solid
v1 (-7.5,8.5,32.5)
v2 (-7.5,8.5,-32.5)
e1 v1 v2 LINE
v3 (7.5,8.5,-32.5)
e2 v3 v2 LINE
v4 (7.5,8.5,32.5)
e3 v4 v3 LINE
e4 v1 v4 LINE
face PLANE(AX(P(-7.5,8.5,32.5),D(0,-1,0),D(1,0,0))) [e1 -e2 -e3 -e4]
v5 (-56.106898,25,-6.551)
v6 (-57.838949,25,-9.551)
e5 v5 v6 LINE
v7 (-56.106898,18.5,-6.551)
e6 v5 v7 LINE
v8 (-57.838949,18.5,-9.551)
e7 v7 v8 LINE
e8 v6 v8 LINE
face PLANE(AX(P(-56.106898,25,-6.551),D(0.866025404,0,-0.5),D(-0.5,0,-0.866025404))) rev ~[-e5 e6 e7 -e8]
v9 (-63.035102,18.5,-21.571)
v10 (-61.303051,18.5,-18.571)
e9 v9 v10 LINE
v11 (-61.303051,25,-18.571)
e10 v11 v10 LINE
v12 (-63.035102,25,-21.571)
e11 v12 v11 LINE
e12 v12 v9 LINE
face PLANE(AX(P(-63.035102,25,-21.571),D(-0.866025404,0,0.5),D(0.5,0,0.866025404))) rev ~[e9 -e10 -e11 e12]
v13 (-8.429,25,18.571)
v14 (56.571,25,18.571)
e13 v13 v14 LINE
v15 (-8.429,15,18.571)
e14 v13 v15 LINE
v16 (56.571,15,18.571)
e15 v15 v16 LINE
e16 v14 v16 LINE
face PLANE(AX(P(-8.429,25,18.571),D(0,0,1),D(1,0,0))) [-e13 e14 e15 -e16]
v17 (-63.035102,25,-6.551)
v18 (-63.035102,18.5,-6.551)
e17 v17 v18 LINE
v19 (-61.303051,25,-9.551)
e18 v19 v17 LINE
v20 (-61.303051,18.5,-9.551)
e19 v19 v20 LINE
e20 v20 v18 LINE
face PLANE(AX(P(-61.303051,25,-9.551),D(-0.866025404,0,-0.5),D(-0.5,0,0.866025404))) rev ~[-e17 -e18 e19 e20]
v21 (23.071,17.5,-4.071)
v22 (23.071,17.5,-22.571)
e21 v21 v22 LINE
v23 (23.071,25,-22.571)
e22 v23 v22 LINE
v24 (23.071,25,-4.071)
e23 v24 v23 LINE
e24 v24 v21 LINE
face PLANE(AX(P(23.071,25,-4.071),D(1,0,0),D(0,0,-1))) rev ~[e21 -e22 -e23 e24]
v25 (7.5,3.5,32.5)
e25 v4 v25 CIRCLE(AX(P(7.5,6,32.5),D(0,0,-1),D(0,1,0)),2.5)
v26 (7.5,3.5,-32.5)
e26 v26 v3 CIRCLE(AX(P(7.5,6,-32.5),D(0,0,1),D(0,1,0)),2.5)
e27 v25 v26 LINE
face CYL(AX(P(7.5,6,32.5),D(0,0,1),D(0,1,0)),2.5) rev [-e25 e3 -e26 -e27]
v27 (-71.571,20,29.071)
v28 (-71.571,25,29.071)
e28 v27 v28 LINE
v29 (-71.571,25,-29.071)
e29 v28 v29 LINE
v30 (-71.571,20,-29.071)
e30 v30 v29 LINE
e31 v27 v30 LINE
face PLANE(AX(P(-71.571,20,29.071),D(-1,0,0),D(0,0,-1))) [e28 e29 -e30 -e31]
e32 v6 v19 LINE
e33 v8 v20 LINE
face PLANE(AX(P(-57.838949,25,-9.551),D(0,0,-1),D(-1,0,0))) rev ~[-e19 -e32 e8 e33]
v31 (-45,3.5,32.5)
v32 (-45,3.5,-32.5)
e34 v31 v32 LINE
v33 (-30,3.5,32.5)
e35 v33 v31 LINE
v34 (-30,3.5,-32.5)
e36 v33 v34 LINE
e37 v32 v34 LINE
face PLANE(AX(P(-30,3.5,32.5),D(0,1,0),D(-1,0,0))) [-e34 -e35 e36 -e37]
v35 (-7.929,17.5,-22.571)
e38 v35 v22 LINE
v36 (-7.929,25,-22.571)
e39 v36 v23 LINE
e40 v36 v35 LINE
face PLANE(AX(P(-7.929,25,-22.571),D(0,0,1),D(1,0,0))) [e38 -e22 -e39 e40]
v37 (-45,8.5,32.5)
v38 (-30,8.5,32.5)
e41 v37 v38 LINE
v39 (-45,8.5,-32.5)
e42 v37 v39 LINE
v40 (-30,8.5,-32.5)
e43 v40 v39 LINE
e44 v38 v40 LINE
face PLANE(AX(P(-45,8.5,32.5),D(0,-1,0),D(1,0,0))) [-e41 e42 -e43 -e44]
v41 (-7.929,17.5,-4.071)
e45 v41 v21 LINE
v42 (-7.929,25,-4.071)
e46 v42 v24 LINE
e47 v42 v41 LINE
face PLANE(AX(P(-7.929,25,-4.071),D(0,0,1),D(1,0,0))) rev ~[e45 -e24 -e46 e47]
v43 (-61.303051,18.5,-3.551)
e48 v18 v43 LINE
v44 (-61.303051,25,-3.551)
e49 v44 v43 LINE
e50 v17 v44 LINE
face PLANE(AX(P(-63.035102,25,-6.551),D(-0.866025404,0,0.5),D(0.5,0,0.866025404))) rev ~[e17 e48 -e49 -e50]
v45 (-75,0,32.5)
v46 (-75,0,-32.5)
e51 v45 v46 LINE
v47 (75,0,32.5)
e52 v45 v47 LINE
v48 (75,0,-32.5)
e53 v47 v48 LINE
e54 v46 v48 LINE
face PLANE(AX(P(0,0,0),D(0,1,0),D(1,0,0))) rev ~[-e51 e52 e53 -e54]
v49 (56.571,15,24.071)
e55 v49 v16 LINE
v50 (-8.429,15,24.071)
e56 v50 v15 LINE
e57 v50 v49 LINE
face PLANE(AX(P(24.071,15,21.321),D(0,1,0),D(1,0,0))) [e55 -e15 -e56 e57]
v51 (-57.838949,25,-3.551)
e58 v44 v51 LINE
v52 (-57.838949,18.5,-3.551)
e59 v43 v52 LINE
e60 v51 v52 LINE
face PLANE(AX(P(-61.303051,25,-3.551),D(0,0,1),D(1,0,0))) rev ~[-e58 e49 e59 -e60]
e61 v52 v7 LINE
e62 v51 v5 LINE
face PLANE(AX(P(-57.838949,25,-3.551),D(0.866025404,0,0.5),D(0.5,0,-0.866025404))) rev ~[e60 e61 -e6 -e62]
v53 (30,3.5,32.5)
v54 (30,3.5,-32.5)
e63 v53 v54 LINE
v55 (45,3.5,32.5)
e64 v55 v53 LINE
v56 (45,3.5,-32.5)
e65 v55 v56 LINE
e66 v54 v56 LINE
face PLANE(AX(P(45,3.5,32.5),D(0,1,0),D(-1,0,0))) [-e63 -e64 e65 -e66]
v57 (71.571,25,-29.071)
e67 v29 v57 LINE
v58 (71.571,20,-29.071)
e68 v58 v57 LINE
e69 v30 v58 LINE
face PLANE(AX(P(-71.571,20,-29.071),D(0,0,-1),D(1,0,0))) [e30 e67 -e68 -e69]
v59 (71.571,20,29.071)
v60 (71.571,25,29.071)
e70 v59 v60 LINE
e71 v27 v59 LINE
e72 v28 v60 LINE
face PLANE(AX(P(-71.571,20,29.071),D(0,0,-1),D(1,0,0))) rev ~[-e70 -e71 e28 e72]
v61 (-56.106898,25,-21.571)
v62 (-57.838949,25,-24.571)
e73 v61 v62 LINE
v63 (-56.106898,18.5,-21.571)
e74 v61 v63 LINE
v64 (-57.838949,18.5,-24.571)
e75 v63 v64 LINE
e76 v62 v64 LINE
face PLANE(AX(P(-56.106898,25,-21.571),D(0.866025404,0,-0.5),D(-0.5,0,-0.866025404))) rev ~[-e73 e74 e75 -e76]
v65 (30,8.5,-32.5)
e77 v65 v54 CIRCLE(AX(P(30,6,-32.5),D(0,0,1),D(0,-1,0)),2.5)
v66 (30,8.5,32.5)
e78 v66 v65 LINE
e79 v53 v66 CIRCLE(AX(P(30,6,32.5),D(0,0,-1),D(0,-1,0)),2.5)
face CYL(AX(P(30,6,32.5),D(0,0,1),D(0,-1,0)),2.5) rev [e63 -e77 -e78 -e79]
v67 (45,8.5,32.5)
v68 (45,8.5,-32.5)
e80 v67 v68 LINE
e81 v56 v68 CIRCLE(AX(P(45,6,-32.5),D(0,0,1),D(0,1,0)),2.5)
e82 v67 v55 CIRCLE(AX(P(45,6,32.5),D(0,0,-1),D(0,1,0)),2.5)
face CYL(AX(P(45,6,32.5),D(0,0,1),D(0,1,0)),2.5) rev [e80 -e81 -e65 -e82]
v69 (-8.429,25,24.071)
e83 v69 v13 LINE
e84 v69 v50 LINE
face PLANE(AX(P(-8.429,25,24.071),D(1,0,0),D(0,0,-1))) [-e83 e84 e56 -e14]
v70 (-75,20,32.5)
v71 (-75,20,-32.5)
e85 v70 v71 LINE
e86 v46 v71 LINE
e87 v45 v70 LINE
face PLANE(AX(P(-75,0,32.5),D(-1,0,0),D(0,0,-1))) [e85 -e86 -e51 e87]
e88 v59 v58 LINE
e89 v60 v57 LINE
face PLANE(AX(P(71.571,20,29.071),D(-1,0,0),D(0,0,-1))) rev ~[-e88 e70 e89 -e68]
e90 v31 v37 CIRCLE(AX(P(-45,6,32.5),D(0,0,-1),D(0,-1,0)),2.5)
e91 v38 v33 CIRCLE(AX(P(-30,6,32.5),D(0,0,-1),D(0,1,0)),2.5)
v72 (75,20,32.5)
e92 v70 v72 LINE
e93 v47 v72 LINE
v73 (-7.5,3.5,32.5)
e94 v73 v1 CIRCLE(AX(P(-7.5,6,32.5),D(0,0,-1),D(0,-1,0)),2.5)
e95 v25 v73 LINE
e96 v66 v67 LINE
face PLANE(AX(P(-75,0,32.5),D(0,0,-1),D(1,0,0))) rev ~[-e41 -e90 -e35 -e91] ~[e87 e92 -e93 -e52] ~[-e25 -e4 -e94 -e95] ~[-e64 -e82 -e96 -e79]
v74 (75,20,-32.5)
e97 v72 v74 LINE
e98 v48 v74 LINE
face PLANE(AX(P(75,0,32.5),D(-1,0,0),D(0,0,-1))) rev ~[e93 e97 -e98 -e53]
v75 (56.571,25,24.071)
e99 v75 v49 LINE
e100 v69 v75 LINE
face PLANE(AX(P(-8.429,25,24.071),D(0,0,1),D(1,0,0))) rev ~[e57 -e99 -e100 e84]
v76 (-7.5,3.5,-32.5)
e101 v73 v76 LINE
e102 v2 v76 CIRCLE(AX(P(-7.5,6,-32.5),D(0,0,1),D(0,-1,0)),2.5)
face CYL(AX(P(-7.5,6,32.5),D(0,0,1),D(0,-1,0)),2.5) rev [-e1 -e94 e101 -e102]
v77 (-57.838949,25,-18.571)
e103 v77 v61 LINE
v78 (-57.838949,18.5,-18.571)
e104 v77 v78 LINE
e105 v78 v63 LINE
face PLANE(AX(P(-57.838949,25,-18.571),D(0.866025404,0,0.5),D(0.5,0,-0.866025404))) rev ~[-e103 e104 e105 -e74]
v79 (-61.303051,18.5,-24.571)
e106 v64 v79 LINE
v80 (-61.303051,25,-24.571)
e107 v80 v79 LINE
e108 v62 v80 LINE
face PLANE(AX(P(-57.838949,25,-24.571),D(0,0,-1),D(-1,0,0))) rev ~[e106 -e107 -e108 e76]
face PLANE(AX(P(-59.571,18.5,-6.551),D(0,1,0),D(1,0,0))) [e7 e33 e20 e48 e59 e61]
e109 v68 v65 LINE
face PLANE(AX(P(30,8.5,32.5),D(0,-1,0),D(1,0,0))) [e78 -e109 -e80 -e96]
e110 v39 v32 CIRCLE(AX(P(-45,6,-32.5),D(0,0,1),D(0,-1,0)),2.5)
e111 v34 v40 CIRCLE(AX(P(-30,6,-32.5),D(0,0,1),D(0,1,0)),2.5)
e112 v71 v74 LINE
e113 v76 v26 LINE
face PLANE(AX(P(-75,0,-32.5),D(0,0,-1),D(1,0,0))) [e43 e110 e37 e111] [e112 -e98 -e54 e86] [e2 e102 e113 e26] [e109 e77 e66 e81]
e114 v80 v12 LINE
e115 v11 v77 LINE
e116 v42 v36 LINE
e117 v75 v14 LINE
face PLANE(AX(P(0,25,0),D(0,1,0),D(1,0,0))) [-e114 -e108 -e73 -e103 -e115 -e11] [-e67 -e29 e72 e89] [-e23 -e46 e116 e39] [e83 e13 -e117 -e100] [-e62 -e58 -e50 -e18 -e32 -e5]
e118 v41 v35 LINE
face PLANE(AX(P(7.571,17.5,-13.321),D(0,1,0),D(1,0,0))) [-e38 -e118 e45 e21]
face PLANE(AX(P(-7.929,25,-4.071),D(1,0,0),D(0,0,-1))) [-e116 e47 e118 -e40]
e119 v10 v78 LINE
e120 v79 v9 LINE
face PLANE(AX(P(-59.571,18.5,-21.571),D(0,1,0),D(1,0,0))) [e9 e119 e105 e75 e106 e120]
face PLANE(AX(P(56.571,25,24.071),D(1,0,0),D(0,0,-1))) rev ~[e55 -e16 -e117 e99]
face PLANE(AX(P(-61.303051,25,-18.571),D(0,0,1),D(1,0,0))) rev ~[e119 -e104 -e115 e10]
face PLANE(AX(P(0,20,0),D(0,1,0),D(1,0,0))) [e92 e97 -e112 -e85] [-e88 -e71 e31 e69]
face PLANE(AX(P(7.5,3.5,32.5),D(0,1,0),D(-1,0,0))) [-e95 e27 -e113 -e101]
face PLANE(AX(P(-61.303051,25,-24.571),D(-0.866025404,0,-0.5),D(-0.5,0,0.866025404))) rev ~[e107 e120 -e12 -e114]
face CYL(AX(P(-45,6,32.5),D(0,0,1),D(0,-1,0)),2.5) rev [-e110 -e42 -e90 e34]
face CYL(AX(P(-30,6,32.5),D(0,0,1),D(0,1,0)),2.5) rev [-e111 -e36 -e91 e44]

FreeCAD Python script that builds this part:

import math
import FreeCAD as App
import Part
import Sketcher
Q = App.Units.Quantity

doc = App.newDocument("Part")
params = doc.addObject("Spreadsheet::Sheet", "Params")
for row, (alias, value) in enumerate([
    ("sketch1_width", "150 mm"),
    ("sketch1_height", "65 mm"),
    ("pad1_length", "20 mm"),
    ("sketch2_radius", "2.5 mm"),
    ("sketch2_width", "15 mm"),
    ("pad2_length", "5 mm"),
    ("pocket2_length", "6.5 mm"),
    ("sketch5_width", "65 mm"),
    ("sketch5_height", "5.5 mm"),
    ("pocket3_length", "10 mm"),
    ("sketch6_width", "31 mm"),
    ("sketch6_height", "18.5 mm"),
    ("pocket4_length", "7.5 mm"),
], start=1):
    params.set(f"A{row}", alias)
    params.set(f"B{row}", "=" + value)
    params.setAlias(f"B{row}", alias)

body = doc.addObject("PartDesign::Body", "Body")

# Sketch on XZ plane
sketch1 = body.newObject("Sketcher::SketchObject", "Sketch")
sketch1.AttachmentSupport = (doc.getObject("XZ_Plane"), [""])
sketch1.MapMode = "FlatFace"
sketch1.addGeometry([
    Part.LineSegment(App.Vector(-75, -32, 0), App.Vector(-75, 32, 0)),
    Part.LineSegment(App.Vector(-75, 32, 0), App.Vector(75, 32, 0)),
    Part.LineSegment(App.Vector(75, 32, 0), App.Vector(75, -32, 0)),
    Part.LineSegment(App.Vector(75, -32, 0), App.Vector(-75, -32, 0)),
], False)
sketch1.addConstraint([
    Sketcher.Constraint("Coincident", 0, 2, 1, 1),
    Sketcher.Constraint("Coincident", 1, 2, 2, 1),
    Sketcher.Constraint("Coincident", 2, 2, 3, 1),
    Sketcher.Constraint("Coincident", 3, 2, 0, 1),
    Sketcher.Constraint("Vertical", 0),
    Sketcher.Constraint("Horizontal", 1),
    Sketcher.Constraint("Vertical", 2),
    Sketcher.Constraint("Horizontal", 3),
    Sketcher.Constraint("Symmetric", 0, 2, 2, 2, -1, 1),
    Sketcher.Constraint("DistanceX", 1, 1, 1, 2, 150.0),
    Sketcher.Constraint("DistanceY", 0, 1, 0, 2, 65.0),
])
sketch1.setExpression("Constraints[9]", "Params.sketch1_width")
sketch1.setExpression("Constraints[10]", "Params.sketch1_height")
pad1 = body.newObject("PartDesign::Pad", "Pad")
pad1.Profile = sketch1
pad1.setExpression("Length", "Params.pad1_length")
pad1.Reversed = True

# Sketch on XY plane
sketch2 = body.newObject("Sketcher::SketchObject", "Sketch001")
sketch2.AttachmentSupport = (doc.getObject("XY_Plane"), [""])
sketch2.MapMode = "FlatFace"
sketch2.AttachmentOffset = App.Placement(App.Vector(0, 0, 32.5), App.Rotation())
sketch2.addGeometry([
    Part.LineSegment(App.Vector(7.5, 8.5, 0), App.Vector(-7.5, 8.5, 0)),  # 0
    Part.ArcOfCircle(Part.Circle(App.Vector(-7.5, 6, 0), App.Vector(0, 0, 1), 2.5), math.radians(90), math.radians(270)),  # 1
    Part.LineSegment(App.Vector(-7.5, 3.5, 0), App.Vector(7.5, 3.5, 0)),  # 2
    Part.ArcOfCircle(Part.Circle(App.Vector(7.5, 6, 0), App.Vector(0, 0, 1), 2.5), math.radians(-90), math.radians(90)),  # 3
    Part.LineSegment(App.Vector(-30, 8.5, 0), App.Vector(-45, 8.5, 0)),  # 4
    Part.ArcOfCircle(Part.Circle(App.Vector(-45, 6, 0), App.Vector(0, 0, 1), 2.5), math.radians(90), math.radians(270)),  # 5
    Part.LineSegment(App.Vector(-45, 3.5, 0), App.Vector(-30, 3.5, 0)),  # 6
    Part.ArcOfCircle(Part.Circle(App.Vector(-30, 6, 0), App.Vector(0, 0, 1), 2.5), math.radians(-90), math.radians(90)),  # 7
    Part.LineSegment(App.Vector(45, 8.5, 0), App.Vector(30, 8.5, 0)),  # 8
    Part.ArcOfCircle(Part.Circle(App.Vector(30, 6, 0), App.Vector(0, 0, 1), 2.5), math.radians(90), math.radians(270)),  # 9
    Part.LineSegment(App.Vector(30, 3.5, 0), App.Vector(45, 3.5, 0)),  # 10
    Part.ArcOfCircle(Part.Circle(App.Vector(45, 6, 0), App.Vector(0, 0, 1), 2.5), math.radians(-90), math.radians(90)),  # 11
], False)
sketch2.addConstraint([
    Sketcher.Constraint("Tangent", 0, 2, 1, 1),
    Sketcher.Constraint("Tangent", 1, 2, 2, 1),
    Sketcher.Constraint("Tangent", 2, 2, 3, 1),
    Sketcher.Constraint("Tangent", 3, 2, 0, 1),
    Sketcher.Constraint("Tangent", 4, 2, 5, 1),
    Sketcher.Constraint("Tangent", 5, 2, 6, 1),
    Sketcher.Constraint("Tangent", 6, 2, 7, 1),
    Sketcher.Constraint("Tangent", 7, 2, 4, 1),
    Sketcher.Constraint("Tangent", 8, 2, 9, 1),
    Sketcher.Constraint("Tangent", 9, 2, 10, 1),
    Sketcher.Constraint("Tangent", 10, 2, 11, 1),
    Sketcher.Constraint("Tangent", 11, 2, 8, 1),
    Sketcher.Constraint("Horizontal", 0),
    Sketcher.Constraint("Horizontal", 2),
    Sketcher.Constraint("Horizontal", 4),
    Sketcher.Constraint("Horizontal", 6),
    Sketcher.Constraint("Horizontal", 8),
    Sketcher.Constraint("Horizontal", 10),
    Sketcher.Constraint("Equal", 3, 5),
    Sketcher.Constraint("Equal", 7, 9),
    Sketcher.Constraint("Symmetric", 7, 3, 9, 3, -2),
    Sketcher.Constraint("Horizontal", 3, 3, 5, 3),
    Sketcher.Constraint("Equal", 2, 4),
    Sketcher.Constraint("Equal", 6, 8),
    Sketcher.Constraint("Radius", 1, 2.5),
    Sketcher.Constraint("DistanceX", 0, 2, 0, 1, 15.0),
    Sketcher.Constraint("DistanceY", -1, 1, 1, 3, 6.0),
    Sketcher.Constraint("DistanceX", 5, 3, -1, 1, 45.0),
    Sketcher.Constraint("DistanceX", 1, 3, -1, 1, 7.5),
])
sketch2.setExpression("Constraints[24]", "Params.sketch2_radius")
sketch2.setExpression("Constraints[25]", "Params.sketch2_width")
pocket1 = body.newObject("PartDesign::Pocket", "Pocket")
pocket1.Profile = sketch2
pocket1.Type = "ThroughAll"

# Sketch on XZ plane
sketch3 = body.newObject("Sketcher::SketchObject", "Sketch002")
sketch3.AttachmentSupport = (doc.getObject("XZ_Plane"), [""])
sketch3.MapMode = "FlatFace"
sketch3.AttachmentOffset = App.Placement(App.Vector(0, 0, -20), App.Rotation())
sketch3.addGeometry([
    Part.LineSegment(App.Vector(-72, -29, 0), App.Vector(-72, 29, 0)),
    Part.LineSegment(App.Vector(-72, 29, 0), App.Vector(72, 29, 0)),
    Part.LineSegment(App.Vector(72, 29, 0), App.Vector(72, -29, 0)),
    Part.LineSegment(App.Vector(72, -29, 0), App.Vector(-72, -29, 0)),
], False)
sketch3.addConstraint([
    Sketcher.Constraint("Coincident", 0, 2, 1, 1),
    Sketcher.Constraint("Coincident", 1, 2, 2, 1),
    Sketcher.Constraint("Coincident", 2, 2, 3, 1),
    Sketcher.Constraint("Coincident", 3, 2, 0, 1),
    Sketcher.Constraint("Vertical", 0),
    Sketcher.Constraint("Horizontal", 1),
    Sketcher.Constraint("Vertical", 2),
    Sketcher.Constraint("Horizontal", 3),
    Sketcher.Constraint("Symmetric", 0, 2, 2, 2, -1, 1),
    Sketcher.Constraint("DistanceX", 1, 1, 1, 2, 143.142),
    Sketcher.Constraint("DistanceY", 0, 1, 0, 2, 58.142),
])
pad2 = body.newObject("PartDesign::Pad", "Pad001")
pad2.Profile = sketch3
pad2.setExpression("Length", "Params.pad2_length")
pad2.Reversed = True

# Sketch on XZ plane
sketch4 = body.newObject("Sketcher::SketchObject", "Sketch003")
sketch4.AttachmentSupport = (doc.getObject("XZ_Plane"), [""])
sketch4.MapMode = "FlatFace"
sketch4.AttachmentOffset = App.Placement(App.Vector(0, 0, -25), App.Rotation())
sketch4.addGeometry([
    Part.LineSegment(App.Vector(-61.3, -24.6, 0), App.Vector(-63, -21.6, 0)),  # 0
    Part.LineSegment(App.Vector(-63, -21.6, 0), App.Vector(-61.3, -18.6, 0)),  # 1
    Part.LineSegment(App.Vector(-61.3, -18.6, 0), App.Vector(-57.8, -18.6, 0)),  # 2
    Part.LineSegment(App.Vector(-57.8, -18.6, 0), App.Vector(-56.1, -21.6, 0)),  # 3
    Part.LineSegment(App.Vector(-56.1, -21.6, 0), App.Vector(-57.8, -24.6, 0)),  # 4
    Part.LineSegment(App.Vector(-57.8, -24.6, 0), App.Vector(-61.3, -24.6, 0)),  # 5
    Part.LineSegment(App.Vector(-61.3, -9.6, 0), App.Vector(-63, -6.6, 0)),  # 6
    Part.LineSegment(App.Vector(-63, -6.6, 0), App.Vector(-61.3, -3.6, 0)),  # 7
    Part.LineSegment(App.Vector(-61.3, -3.6, 0), App.Vector(-57.8, -3.6, 0)),  # 8
    Part.LineSegment(App.Vector(-57.8, -3.6, 0), App.Vector(-56.1, -6.6, 0)),  # 9
    Part.LineSegment(App.Vector(-56.1, -6.6, 0), App.Vector(-57.8, -9.6, 0)),  # 10
    Part.LineSegment(App.Vector(-57.8, -9.6, 0), App.Vector(-61.3, -9.6, 0)),  # 11
], False)
sketch4.addConstraint([
    Sketcher.Constraint("Coincident", 0, 2, 1, 1),
    Sketcher.Constraint("Coincident", 1, 2, 2, 1),
    Sketcher.Constraint("Coincident", 2, 2, 3, 1),
    Sketcher.Constraint("Coincident", 3, 2, 4, 1),
    Sketcher.Constraint("Coincident", 4, 2, 5, 1),
    Sketcher.Constraint("Coincident", 5, 2, 0, 1),
    Sketcher.Constraint("Coincident", 6, 2, 7, 1),
    Sketcher.Constraint("Coincident", 7, 2, 8, 1),
    Sketcher.Constraint("Coincident", 8, 2, 9, 1),
    Sketcher.Constraint("Coincident", 9, 2, 10, 1),
    Sketcher.Constraint("Coincident", 10, 2, 11, 1),
    Sketcher.Constraint("Coincident", 11, 2, 6, 1),
    Sketcher.Constraint("Horizontal", 2),
    Sketcher.Constraint("Horizontal", 5),
    Sketcher.Constraint("Horizontal", 8),
    Sketcher.Constraint("Horizontal", 11),
    Sketcher.Constraint("Parallel", 0, 3),
    Sketcher.Constraint("Parallel", 1, 4),
    Sketcher.Constraint("Parallel", 3, 6),
    Sketcher.Constraint("Parallel", 4, 7),
    Sketcher.Constraint("Parallel", 6, 9),
    Sketcher.Constraint("Parallel", 7, 10),
    Sketcher.Constraint("Horizontal", 0, 2, 3, 2),
    Sketcher.Constraint("Horizontal", 6, 2, 9, 2),
    Sketcher.Constraint("Vertical", 2, 2, 4, 2),
    Sketcher.Constraint("Vertical", 1, 2, 5, 2),
    Sketcher.Constraint("Vertical", 0, 2, 6, 2),
    Sketcher.Constraint("Vertical", 5, 2, 7, 2),
    Sketcher.Constraint("Vertical", 4, 2, 8, 2),
    Sketcher.Constraint("Vertical", 8, 2, 10, 2),
    Sketcher.Constraint("Angle", 0, Q("120 deg")),
    Sketcher.Constraint("DistanceY", 0, 2, 1, 2, 3.0),
    Sketcher.Constraint("DistanceY", 1, 2, 6, 2, 12.02),
    Sketcher.Constraint("DistanceX", 2, 1, 2, 2, 3.464102),
    Sketcher.Constraint("DistanceY", 0, 2, -1, 1, 21.571),
    Sketcher.Constraint("DistanceX", 0, 2, -1, 1, 63.035102),
])
pocket2 = body.newObject("PartDesign::Pocket", "Pocket001")
pocket2.Profile = sketch4
pocket2.setExpression("Length", "Params.pocket2_length")
pocket2.Reversed = True

# Sketch on XZ plane
sketch5 = body.newObject("Sketcher::SketchObject", "Sketch004")
sketch5.AttachmentSupport = (doc.getObject("XZ_Plane"), [""])
sketch5.MapMode = "FlatFace"
sketch5.AttachmentOffset = App.Placement(App.Vector(0, 0, -25), App.Rotation())
sketch5.addGeometry([
    Part.LineSegment(App.Vector(-8, 19, 0), App.Vector(-8, 24, 0)),
    Part.LineSegment(App.Vector(-8, 24, 0), App.Vector(57, 24, 0)),
    Part.LineSegment(App.Vector(57, 24, 0), App.Vector(57, 19, 0)),
    Part.LineSegment(App.Vector(57, 19, 0), App.Vector(-8, 19, 0)),
], False)
sketch5.addConstraint([
    Sketcher.Constraint("Coincident", 0, 2, 1, 1),
    Sketcher.Constraint("Coincident", 1, 2, 2, 1),
    Sketcher.Constraint("Coincident", 2, 2, 3, 1),
    Sketcher.Constraint("Coincident", 3, 2, 0, 1),
    Sketcher.Constraint("Vertical", 0),
    Sketcher.Constraint("Horizontal", 1),
    Sketcher.Constraint("Vertical", 2),
    Sketcher.Constraint("Horizontal", 3),
    Sketcher.Constraint("DistanceX", 1, 1, 1, 2, 65.0),
    Sketcher.Constraint("DistanceY", 0, 1, 0, 2, 5.5),
    Sketcher.Constraint("DistanceX", 0, 2, -1, 1, 8.429),
    Sketcher.Constraint("DistanceY", -1, 1, 0, 2, 24.071),
])
sketch5.setExpression("Constraints[8]", "Params.sketch5_width")
sketch5.setExpression("Constraints[9]", "Params.sketch5_height")
pocket3 = body.newObject("PartDesign::Pocket", "Pocket002")
pocket3.Profile = sketch5
pocket3.setExpression("Length", "Params.pocket3_length")
pocket3.Reversed = True

# Sketch on XZ plane
sketch6 = body.newObject("Sketcher::SketchObject", "Sketch005")
sketch6.AttachmentSupport = (doc.getObject("XZ_Plane"), [""])
sketch6.MapMode = "FlatFace"
sketch6.AttachmentOffset = App.Placement(App.Vector(0, 0, -25), App.Rotation())
sketch6.addGeometry([
    Part.LineSegment(App.Vector(-8, -23, 0), App.Vector(-8, -4, 0)),
    Part.LineSegment(App.Vector(-8, -4, 0), App.Vector(23, -4, 0)),
    Part.LineSegment(App.Vector(23, -4, 0), App.Vector(23, -23, 0)),
    Part.LineSegment(App.Vector(23, -23, 0), App.Vector(-8, -23, 0)),
], False)
sketch6.addConstraint([
    Sketcher.Constraint("Coincident", 0, 2, 1, 1),
    Sketcher.Constraint("Coincident", 1, 2, 2, 1),
    Sketcher.Constraint("Coincident", 2, 2, 3, 1),
    Sketcher.Constraint("Coincident", 3, 2, 0, 1),
    Sketcher.Constraint("Vertical", 0),
    Sketcher.Constraint("Horizontal", 1),
    Sketcher.Constraint("Vertical", 2),
    Sketcher.Constraint("Horizontal", 3),
    Sketcher.Constraint("DistanceX", 1, 1, 1, 2, 31.0),
    Sketcher.Constraint("DistanceY", 0, 1, 0, 2, 18.5),
    Sketcher.Constraint("DistanceX", 0, 2, -1, 1, 7.929),
    Sketcher.Constraint("DistanceY", 0, 2, -1, 1, 4.071),
])
sketch6.setExpression("Constraints[8]", "Params.sketch6_width")
sketch6.setExpression("Constraints[9]", "Params.sketch6_height")
pocket4 = body.newObject("PartDesign::Pocket", "Pocket003")
pocket4.Profile = sketch6
pocket4.setExpression("Length", "Params.pocket4_length")
pocket4.Reversed = True

doc.recompute()
